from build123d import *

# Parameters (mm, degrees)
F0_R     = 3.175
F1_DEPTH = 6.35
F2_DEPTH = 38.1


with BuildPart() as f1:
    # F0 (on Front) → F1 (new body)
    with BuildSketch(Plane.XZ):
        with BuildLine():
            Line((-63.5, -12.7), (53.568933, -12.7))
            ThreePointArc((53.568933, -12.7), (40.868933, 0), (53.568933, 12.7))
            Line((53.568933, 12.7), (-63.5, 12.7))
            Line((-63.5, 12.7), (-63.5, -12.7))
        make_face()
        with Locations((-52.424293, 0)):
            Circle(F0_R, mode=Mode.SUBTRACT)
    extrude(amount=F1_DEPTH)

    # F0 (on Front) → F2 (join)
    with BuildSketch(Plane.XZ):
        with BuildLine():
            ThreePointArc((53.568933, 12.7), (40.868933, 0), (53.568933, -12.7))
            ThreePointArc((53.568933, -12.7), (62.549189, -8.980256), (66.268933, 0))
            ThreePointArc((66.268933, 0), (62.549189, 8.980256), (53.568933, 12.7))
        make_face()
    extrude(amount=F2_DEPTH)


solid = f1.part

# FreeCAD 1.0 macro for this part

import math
import FreeCAD as App
import Part
import Sketcher
from FreeCAD import Vector
Q = App.Units.Quantity

doc = App.newDocument("Part")
params = doc.addObject("Spreadsheet::Sheet", "Params")
for row, (alias, value) in enumerate([
    ("sketch1_radius", "0.5 in"),
    ("sketch1_diameter", "0.25 in"),
    ("pad1_length", "0.25 in"),
    ("sketch2_radius", "0.5 in"),
    ("pad2_length", "1.5 in"),
], start=1):
    params.set(f"A{row}", alias)
    params.set(f"B{row}", "=" + value)
    params.setAlias(f"B{row}", alias)

body = doc.addObject("PartDesign::Body", "Body")

sketch1 = body.newObject("Sketcher::SketchObject", "Sketch")
sketch1.AttachmentSupport = (doc.getObject("XZ_Plane"), [""])
sketch1.MapMode = "FlatFace"
sketch1.addGeometry(Part.LineSegment(Vector(-63.5, -12.7, 0), Vector(53.6, -12.7, 0)), False)
sketch1.addGeometry(Part.ArcOfCircle(Part.Circle(Vector(53.6, 0, 0), Vector(0, 0, 1), 12.7), math.radians(90), math.radians(270)), False)
sketch1.addGeometry(Part.LineSegment(Vector(53.6, 12.7, 0), Vector(-63.5, 12.7, 0)), False)
sketch1.addGeometry(Part.LineSegment(Vector(-63.5, 12.7, 0), Vector(-63.5, -12.7, 0)), False)
sketch1.addGeometry(Part.Circle(Vector(-52.4, 0, 0), Vector(0, 0, 1), 3.2), False)
sketch1.addConstraint(Sketcher.Constraint("Tangent", 0, 2, 1, 2))
sketch1.addConstraint(Sketcher.Constraint("Tangent", 1, 1, 2, 1))
sketch1.addConstraint(Sketcher.Constraint("Coincident", 2, 2, 3, 1))
sketch1.addConstraint(Sketcher.Constraint("Coincident", 3, 2, 0, 1))
sketch1.addConstraint(Sketcher.Constraint("Horizontal", 0))
sketch1.addConstraint(Sketcher.Constraint("Horizontal", 2))
sketch1.addConstraint(Sketcher.Constraint("Vertical", 3))
sketch1.addConstraint(Sketcher.Constraint("PointOnObject", 1, 3, -1))
sketch1.addConstraint(Sketcher.Constraint("PointOnObject", 4, 3, -1))
sketch1.addConstraint(Sketcher.Constraint("Radius", 1, Q("0.5 in")))
sketch1.addConstraint(Sketcher.Constraint("Diameter", 4, Q("0.25 in")))
sketch1.addConstraint(Sketcher.Constraint("DistanceX", 2, 2, -1, 1, Q("2.5 in")))
sketch1.addConstraint(Sketcher.Constraint("DistanceX", 0, 1, 0, 2, 117.068933))
sketch1.addConstraint(Sketcher.Constraint("DistanceX", 4, 3, -1, 1, 52.424293))
sketch1.setExpression("Constraints[9]", "Params.sketch1_radius")
sketch1.setExpression("Constraints[10]", "Params.sketch1_diameter")
pad1 = body.newObject("PartDesign::Pad", "Pad")
pad1.Profile = sketch1
pad1.setExpression("Length", "Params.pad1_length")

sketch2 = body.newObject("Sketcher::SketchObject", "Sketch001")
sketch2.AttachmentSupport = (doc.getObject("XZ_Plane"), [""])
sketch2.MapMode = "FlatFace"
sketch2.addGeometry(Part.ArcOfCircle(Part.Circle(Vector(54, 0, 0), Vector(0, 0, 1), 13), math.radians(90), math.radians(270)), False)
sketch2.addGeometry(Part.ArcOfCircle(Part.Circle(Vector(54, 0, 0), Vector(0, 0, 1), 13), math.radians(-90), math.radians(0)), False)
sketch2.addGeometry(Part.ArcOfCircle(Part.Circle(Vector(54, 0, 0), Vector(0, 0, 1), 13), math.radians(0), math.radians(90)), False)
sketch2.addConstraint(Sketcher.Constraint("Tangent", 0, 2, 1, 1))
sketch2.addConstraint(Sketcher.Constraint("Tangent", 1, 2, 2, 1))
sketch2.addConstraint(Sketcher.Constraint("Tangent", 2, 2, 0, 1))
sketch2.addConstraint(Sketcher.Constraint("Symmetric", 0, 2, 2, 2, -1))
sketch2.addConstraint(Sketcher.Constraint("PointOnObject", 1, 2, -1))
sketch2.addConstraint(Sketcher.Constraint("Vertical", 2, 3, 0, 2))
sketch2.addConstraint(Sketcher.Constraint("Radius", 0, Q("0.5 in")))
sketch2.addConstraint(Sketcher.Constraint("DistanceX", -1, 1, 0, 3, 53.568933))
sketch2.setExpression("Constraints[6]", "Params.sketch2_radius")
pad2 = body.newObject("PartDesign::Pad", "Pad001")
pad2.Profile = sketch2
pad2.setExpression("Length", "Params.pad2_length")

doc.recompute()
